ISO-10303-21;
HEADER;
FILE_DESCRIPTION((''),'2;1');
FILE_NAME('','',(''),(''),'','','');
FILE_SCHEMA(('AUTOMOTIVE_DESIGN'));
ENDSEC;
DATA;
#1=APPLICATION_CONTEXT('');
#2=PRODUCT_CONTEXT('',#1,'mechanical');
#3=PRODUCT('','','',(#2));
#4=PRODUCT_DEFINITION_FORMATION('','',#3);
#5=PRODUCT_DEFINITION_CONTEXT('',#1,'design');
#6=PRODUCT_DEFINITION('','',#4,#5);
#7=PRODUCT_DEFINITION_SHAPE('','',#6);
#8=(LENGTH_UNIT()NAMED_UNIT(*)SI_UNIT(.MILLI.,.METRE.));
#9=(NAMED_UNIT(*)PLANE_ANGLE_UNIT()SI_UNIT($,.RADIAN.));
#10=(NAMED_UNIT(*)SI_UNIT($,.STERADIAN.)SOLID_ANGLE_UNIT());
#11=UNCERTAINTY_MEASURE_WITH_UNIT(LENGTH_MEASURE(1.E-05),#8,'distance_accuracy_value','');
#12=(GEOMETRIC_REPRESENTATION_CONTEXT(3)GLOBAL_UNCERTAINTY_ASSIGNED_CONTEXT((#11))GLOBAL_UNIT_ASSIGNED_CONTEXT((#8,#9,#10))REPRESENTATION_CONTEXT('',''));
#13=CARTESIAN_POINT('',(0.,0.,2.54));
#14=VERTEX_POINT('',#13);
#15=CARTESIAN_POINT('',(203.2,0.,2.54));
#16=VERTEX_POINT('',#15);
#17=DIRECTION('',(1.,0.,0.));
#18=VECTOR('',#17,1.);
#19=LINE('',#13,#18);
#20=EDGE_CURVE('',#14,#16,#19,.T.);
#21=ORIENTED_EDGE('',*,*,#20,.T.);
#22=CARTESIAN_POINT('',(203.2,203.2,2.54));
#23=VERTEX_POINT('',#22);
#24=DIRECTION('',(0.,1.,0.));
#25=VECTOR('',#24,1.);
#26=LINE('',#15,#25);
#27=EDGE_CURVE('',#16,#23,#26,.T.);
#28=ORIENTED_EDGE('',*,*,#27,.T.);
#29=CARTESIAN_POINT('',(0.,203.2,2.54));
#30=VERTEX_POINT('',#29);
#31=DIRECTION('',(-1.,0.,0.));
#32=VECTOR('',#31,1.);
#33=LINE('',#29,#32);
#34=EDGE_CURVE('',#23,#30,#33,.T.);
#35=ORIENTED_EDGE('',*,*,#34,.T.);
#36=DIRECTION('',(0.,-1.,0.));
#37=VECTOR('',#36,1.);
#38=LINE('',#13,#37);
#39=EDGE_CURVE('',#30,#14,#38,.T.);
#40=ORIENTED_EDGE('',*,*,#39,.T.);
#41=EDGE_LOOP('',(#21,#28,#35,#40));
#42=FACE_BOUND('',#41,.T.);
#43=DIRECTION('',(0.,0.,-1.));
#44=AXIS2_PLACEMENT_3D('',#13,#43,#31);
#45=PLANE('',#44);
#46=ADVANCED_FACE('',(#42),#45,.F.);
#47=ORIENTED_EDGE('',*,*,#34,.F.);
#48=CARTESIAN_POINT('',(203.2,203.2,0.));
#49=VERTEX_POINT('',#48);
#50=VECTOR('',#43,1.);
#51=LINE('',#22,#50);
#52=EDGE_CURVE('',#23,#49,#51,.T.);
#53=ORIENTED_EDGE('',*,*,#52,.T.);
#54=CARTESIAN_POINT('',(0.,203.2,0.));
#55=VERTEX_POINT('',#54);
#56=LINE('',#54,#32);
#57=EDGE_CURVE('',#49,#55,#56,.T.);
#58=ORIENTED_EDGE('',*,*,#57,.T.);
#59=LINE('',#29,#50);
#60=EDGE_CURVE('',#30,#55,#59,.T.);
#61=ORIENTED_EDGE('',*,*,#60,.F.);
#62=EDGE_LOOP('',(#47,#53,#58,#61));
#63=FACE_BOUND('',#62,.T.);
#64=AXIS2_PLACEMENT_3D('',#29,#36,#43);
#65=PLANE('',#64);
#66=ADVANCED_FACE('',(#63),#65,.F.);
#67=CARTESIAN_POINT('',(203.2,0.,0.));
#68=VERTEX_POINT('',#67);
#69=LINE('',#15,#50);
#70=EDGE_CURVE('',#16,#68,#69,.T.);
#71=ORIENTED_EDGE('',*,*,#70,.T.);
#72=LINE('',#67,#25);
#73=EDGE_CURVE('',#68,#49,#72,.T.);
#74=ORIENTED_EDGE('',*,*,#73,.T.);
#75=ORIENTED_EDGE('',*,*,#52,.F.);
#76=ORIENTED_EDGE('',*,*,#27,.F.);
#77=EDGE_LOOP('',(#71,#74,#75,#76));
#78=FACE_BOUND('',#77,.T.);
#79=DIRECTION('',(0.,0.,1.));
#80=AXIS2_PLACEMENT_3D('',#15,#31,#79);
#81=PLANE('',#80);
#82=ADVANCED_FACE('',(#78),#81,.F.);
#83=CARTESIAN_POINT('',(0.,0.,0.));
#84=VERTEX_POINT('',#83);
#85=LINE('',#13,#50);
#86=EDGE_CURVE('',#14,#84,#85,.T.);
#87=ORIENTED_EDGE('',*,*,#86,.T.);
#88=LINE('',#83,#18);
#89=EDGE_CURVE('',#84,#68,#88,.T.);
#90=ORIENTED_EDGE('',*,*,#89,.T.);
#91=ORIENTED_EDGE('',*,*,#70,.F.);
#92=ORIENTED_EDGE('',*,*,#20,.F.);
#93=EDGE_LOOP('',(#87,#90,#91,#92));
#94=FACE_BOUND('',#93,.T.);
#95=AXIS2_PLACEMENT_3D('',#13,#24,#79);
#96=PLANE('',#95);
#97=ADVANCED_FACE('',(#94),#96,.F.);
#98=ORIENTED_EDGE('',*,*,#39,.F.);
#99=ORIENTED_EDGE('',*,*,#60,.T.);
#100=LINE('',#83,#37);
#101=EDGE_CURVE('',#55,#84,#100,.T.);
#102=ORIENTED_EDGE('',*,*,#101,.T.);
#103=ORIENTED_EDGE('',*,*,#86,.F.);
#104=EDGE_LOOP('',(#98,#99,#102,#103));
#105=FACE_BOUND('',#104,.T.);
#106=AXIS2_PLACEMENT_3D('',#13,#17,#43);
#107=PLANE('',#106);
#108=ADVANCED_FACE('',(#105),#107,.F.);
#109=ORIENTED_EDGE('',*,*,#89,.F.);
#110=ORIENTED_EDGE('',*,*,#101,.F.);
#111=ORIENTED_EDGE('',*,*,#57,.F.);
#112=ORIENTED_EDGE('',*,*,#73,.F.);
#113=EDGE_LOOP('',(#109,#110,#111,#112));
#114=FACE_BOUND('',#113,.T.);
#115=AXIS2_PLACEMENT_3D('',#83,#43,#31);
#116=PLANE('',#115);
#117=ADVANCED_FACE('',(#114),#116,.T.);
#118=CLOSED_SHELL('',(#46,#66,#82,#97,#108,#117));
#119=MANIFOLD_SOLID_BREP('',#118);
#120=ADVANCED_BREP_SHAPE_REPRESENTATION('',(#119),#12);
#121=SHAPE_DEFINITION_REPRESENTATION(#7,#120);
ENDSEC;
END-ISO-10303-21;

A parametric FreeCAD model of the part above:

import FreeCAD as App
import Part
import Sketcher
Q = App.Units.Quantity


def add_polygon(sketch, points):
    """Adds a closed chain of lines whose ends are joined by coincident constraints."""
    first, n = sketch.GeometryCount, len(points)
    for a, b in zip(points, points[1:] + points[:1]):
        sketch.addGeometry(Part.LineSegment(App.Vector(*a, 0), App.Vector(*b, 0)), False)
    for i in range(n):
        sketch.addConstraint(Sketcher.Constraint("Coincident", first + i, 2, first + (i + 1) % n, 1))

doc = App.newDocument("Part")
body = doc.addObject("PartDesign::Body", "Body")

sketch1 = body.newObject("Sketcher::SketchObject", "Sketch")
sketch1.AttachmentSupport = (doc.getObject("XY_Plane"), [""])
sketch1.MapMode = "FlatFace"
add_polygon(sketch1, [(0, 203.2), (0, 0), (203.2, 0), (203.2, 203.2)])
sketch1.addConstraint([
    Sketcher.Constraint("Vertical", 0),
    Sketcher.Constraint("Horizontal", 1),
    Sketcher.Constraint("Vertical", 2),
    Sketcher.Constraint("Horizontal", 3),
    Sketcher.Constraint("Coincident", 0, 2, -1, 1),
    Sketcher.Constraint("Equal", 3, 0),
    Sketcher.Constraint("DistanceX", 1, 1, 1, 2, Q("8 in")),
])
pad1 = body.newObject("PartDesign::Pad", "Pad")
pad1.Profile = sketch1
pad1.Length = Q("0.1 in")

doc.recompute()
